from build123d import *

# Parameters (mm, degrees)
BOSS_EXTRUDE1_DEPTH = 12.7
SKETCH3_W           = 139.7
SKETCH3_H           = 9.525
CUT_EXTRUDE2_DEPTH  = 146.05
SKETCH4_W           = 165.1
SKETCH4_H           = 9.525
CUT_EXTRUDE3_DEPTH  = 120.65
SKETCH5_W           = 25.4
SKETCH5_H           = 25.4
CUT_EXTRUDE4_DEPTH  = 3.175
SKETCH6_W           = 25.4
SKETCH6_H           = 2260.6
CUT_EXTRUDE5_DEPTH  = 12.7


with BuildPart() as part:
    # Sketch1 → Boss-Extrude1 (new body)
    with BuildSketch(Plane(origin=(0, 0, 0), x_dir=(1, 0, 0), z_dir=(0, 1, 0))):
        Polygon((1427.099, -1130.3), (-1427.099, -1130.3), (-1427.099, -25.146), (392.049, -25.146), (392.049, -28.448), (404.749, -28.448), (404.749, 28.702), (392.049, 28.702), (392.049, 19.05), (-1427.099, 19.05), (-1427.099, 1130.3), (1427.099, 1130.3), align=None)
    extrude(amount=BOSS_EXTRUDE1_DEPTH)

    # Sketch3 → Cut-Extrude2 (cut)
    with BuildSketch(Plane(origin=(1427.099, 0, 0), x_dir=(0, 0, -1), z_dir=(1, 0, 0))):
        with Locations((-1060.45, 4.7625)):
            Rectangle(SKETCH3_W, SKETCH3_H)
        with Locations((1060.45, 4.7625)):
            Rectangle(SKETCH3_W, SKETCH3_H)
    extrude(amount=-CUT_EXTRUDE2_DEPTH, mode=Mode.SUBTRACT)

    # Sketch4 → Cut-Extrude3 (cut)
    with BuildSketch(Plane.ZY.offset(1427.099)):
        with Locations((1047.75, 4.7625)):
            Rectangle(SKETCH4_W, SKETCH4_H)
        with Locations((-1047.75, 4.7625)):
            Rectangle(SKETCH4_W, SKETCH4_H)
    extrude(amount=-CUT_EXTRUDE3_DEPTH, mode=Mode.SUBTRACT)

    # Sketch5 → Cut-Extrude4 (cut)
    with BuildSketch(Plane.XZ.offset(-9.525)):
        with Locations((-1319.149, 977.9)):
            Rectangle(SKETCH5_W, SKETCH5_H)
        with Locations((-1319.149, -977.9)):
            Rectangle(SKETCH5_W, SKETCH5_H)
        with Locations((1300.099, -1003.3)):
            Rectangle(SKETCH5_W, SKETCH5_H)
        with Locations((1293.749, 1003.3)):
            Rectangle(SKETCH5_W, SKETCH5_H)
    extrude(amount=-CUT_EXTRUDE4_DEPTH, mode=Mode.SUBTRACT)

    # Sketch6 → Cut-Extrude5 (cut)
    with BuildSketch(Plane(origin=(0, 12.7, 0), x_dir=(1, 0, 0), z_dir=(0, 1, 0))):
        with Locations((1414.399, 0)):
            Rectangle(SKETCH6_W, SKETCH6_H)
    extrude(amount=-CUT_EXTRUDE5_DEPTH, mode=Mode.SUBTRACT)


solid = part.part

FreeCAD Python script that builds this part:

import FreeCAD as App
import Part
import Sketcher
from FreeCAD import Vector
Q = App.Units.Quantity

doc = App.newDocument("Part")
body = doc.addObject("PartDesign::Body", "Body")

sketch1 = body.newObject("Sketcher::SketchObject", "Sketch")
sketch1.AttachmentSupport = (doc.getObject("XZ_Plane"), [""])
sketch1.MapMode = "FlatFace"
sketch1.addGeometry([
    Part.LineSegment(Vector(-1427.099, 1130.3, 0), Vector(1427.099, 1130.3, 0)),
    Part.LineSegment(Vector(1427.099, 1130.3, 0), Vector(1427.099, -1130.3, 0)),
    Part.LineSegment(Vector(1427.099, -1130.3, 0), Vector(-1427.099, -1130.3, 0)),
    Part.LineSegment(Vector(-1427.099, -1130.3, 0), Vector(-1427.099, -19.05, 0)),
    Part.LineSegment(Vector(-1427.099, -19.05, 0), Vector(392.049, -19.05, 0)),
    Part.LineSegment(Vector(392.049, -19.05, 0), Vector(392.049, -28.702, 0)),
    Part.LineSegment(Vector(392.049, -28.702, 0), Vector(404.749, -28.702, 0)),
    Part.LineSegment(Vector(404.749, -28.702, 0), Vector(404.749, 28.448, 0)),
    Part.LineSegment(Vector(404.749, 28.448, 0), Vector(392.049, 28.448, 0)),
    Part.LineSegment(Vector(392.049, 28.448, 0), Vector(392.049, 25.146, 0)),
    Part.LineSegment(Vector(392.049, 25.146, 0), Vector(-1427.099, 25.146, 0)),
    Part.LineSegment(Vector(-1427.099, 25.146, 0), Vector(-1427.099, 1130.3, 0)),
], False)
sketch1.addConstraint([
    Sketcher.Constraint("Coincident", 0, 2, 1, 1),
    Sketcher.Constraint("Coincident", 1, 2, 2, 1),
    Sketcher.Constraint("Coincident", 2, 2, 3, 1),
    Sketcher.Constraint("Coincident", 3, 2, 4, 1),
    Sketcher.Constraint("Coincident", 4, 2, 5, 1),
    Sketcher.Constraint("Coincident", 5, 2, 6, 1),
    Sketcher.Constraint("Coincident", 6, 2, 7, 1),
    Sketcher.Constraint("Coincident", 7, 2, 8, 1),
    Sketcher.Constraint("Coincident", 8, 2, 9, 1),
    Sketcher.Constraint("Coincident", 9, 2, 10, 1),
    Sketcher.Constraint("Coincident", 10, 2, 11, 1),
    Sketcher.Constraint("Coincident", 11, 2, 0, 1),
    Sketcher.Constraint("Horizontal", 0),
    Sketcher.Constraint("Vertical", 1),
    Sketcher.Constraint("Horizontal", 2),
    Sketcher.Constraint("Vertical", 3),
    Sketcher.Constraint("Horizontal", 4),
    Sketcher.Constraint("Vertical", 5),
    Sketcher.Constraint("Horizontal", 6),
    Sketcher.Constraint("Vertical", 7),
    Sketcher.Constraint("Horizontal", 8),
    Sketcher.Constraint("Vertical", 9),
    Sketcher.Constraint("Horizontal", 10),
    Sketcher.Constraint("Vertical", 11),
    Sketcher.Constraint("Symmetric", 0, 2, 2, 2, -1, 1),
    Sketcher.Constraint("Vertical", 5, 2, 8, 2),
    Sketcher.Constraint("Vertical", 3, 2, 10, 2),
    Sketcher.Constraint("DistanceY", 1, 2, 1, 1, Q("89 in")),
    Sketcher.Constraint("DistanceX", 6, 1, 6, 2, Q("0.5 in")),
    Sketcher.Constraint("DistanceX", 0, 1, 0, 2, Q("112.37 in")),
    Sketcher.Constraint("DistanceX", 4, 1, 4, 2, Q("71.62 in")),
    Sketcher.Constraint("DistanceY", 3, 1, 3, 2, Q("43.75 in")),
    Sketcher.Constraint("DistanceY", 5, 2, 5, 1, Q("0.38 in")),
    Sketcher.Constraint("DistanceY", 7, 1, 7, 2, Q("2.25 in")),
    Sketcher.Constraint("DistanceY", 9, 2, 9, 1, Q("0.13 in")),
])
pad1 = body.newObject("PartDesign::Pad", "Pad")
pad1.Profile = sketch1
pad1.Length = Q("0.5 in")
pad1.Reversed = True

sketch2 = body.newObject("Sketcher::SketchObject", "Sketch001")
sketch2.AttachmentSupport = (doc.getObject("YZ_Plane"), [""])
sketch2.MapMode = "FlatFace"
sketch2.AttachmentOffset = App.Placement(Vector(0, 0, 56.185 * 25.4), App.Rotation())
sketch2.addGeometry([
    Part.LineSegment(Vector(9.525, 1130.3, 0), Vector(0, 1130.3, 0)),
    Part.LineSegment(Vector(0, 1130.3, 0), Vector(0, 990.6, 0)),
    Part.LineSegment(Vector(0, 990.6, 0), Vector(9.525, 990.6, 0)),
    Part.LineSegment(Vector(9.525, 990.6, 0), Vector(9.525, 1130.3, 0)),
    Part.LineSegment(Vector(9.525, -990.6, 0), Vector(0, -990.6, 0)),
    Part.LineSegment(Vector(0, -990.6, 0), Vector(0, -1130.3, 0)),
    Part.LineSegment(Vector(0, -1130.3, 0), Vector(9.525, -1130.3, 0)),
    Part.LineSegment(Vector(9.525, -1130.3, 0), Vector(9.525, -990.6, 0)),
], False)
sketch2.addConstraint([
    Sketcher.Constraint("Coincident", 0, 2, 1, 1),
    Sketcher.Constraint("Coincident", 1, 2, 2, 1),
    Sketcher.Constraint("Coincident", 2, 2, 3, 1),
    Sketcher.Constraint("Coincident", 3, 2, 0, 1),
    Sketcher.Constraint("Coincident", 4, 2, 5, 1),
    Sketcher.Constraint("Coincident", 5, 2, 6, 1),
    Sketcher.Constraint("Coincident", 6, 2, 7, 1),
    Sketcher.Constraint("Coincident", 7, 2, 4, 1),
    Sketcher.Constraint("Horizontal", 0),
    Sketcher.Constraint("Vertical", 1),
    Sketcher.Constraint("Horizontal", 2),
    Sketcher.Constraint("Vertical", 3),
    Sketcher.Constraint("Horizontal", 4),
    Sketcher.Constraint("Vertical", 5),
    Sketcher.Constraint("Horizontal", 6),
    Sketcher.Constraint("Vertical", 7),
    Sketcher.Constraint("Symmetric", 1, 2, 4, 2, -1, 1),
    Sketcher.Constraint("Symmetric", 0, 2, 5, 2, -1),
    Sketcher.Constraint("Vertical", 3, 2, 6, 2),
    Sketcher.Constraint("DistanceY", 1, 2, 1, 1, Q("5.5 in")),
    Sketcher.Constraint("DistanceY", -1, 1, 1, 2, Q("39 in")),
    Sketcher.Constraint("DistanceX", 0, 2, 0, 1, Q("0.375 in")),
])
pocket1 = body.newObject("PartDesign::Pocket", "Pocket")
pocket1.Profile = sketch2
pocket1.Length = Q("5.75 in")

sketch3 = body.newObject("Sketcher::SketchObject", "Sketch002")
sketch3.AttachmentSupport = (doc.getObject("YZ_Plane"), [""])
sketch3.MapMode = "FlatFace"
sketch3.AttachmentOffset = App.Placement(Vector(0, 0, -56.185 * 25.4), App.Rotation())
sketch3.addGeometry([
    Part.LineSegment(Vector(9.525, 965.2, 0), Vector(0, 965.2, 0)),
    Part.LineSegment(Vector(0, 965.2, 0), Vector(0, 1130.3, 0)),
    Part.LineSegment(Vector(0, 1130.3, 0), Vector(9.525, 1130.3, 0)),
    Part.LineSegment(Vector(9.525, 1130.3, 0), Vector(9.525, 965.2, 0)),
    Part.LineSegment(Vector(9.525, -1130.3, 0), Vector(0, -1130.3, 0)),
    Part.LineSegment(Vector(0, -1130.3, 0), Vector(0, -965.2, 0)),
    Part.LineSegment(Vector(0, -965.2, 0), Vector(9.525, -965.2, 0)),
    Part.LineSegment(Vector(9.525, -965.2, 0), Vector(9.525, -1130.3, 0)),
], False)
sketch3.addConstraint([
    Sketcher.Constraint("Coincident", 0, 2, 1, 1),
    Sketcher.Constraint("Coincident", 1, 2, 2, 1),
    Sketcher.Constraint("Coincident", 2, 2, 3, 1),
    Sketcher.Constraint("Coincident", 3, 2, 0, 1),
    Sketcher.Constraint("Coincident", 4, 2, 5, 1),
    Sketcher.Constraint("Coincident", 5, 2, 6, 1),
    Sketcher.Constraint("Coincident", 6, 2, 7, 1),
    Sketcher.Constraint("Coincident", 7, 2, 4, 1),
    Sketcher.Constraint("Horizontal", 0),
    Sketcher.Constraint("Vertical", 1),
    Sketcher.Constraint("Horizontal", 2),
    Sketcher.Constraint("Vertical", 3),
    Sketcher.Constraint("Horizontal", 4),
    Sketcher.Constraint("Vertical", 5),
    Sketcher.Constraint("Horizontal", 6),
    Sketcher.Constraint("Vertical", 7),
    Sketcher.Constraint("Symmetric", 1, 2, 4, 2, -1, 1),
    Sketcher.Constraint("Symmetric", 0, 2, 5, 2, -1),
    Sketcher.Constraint("Vertical", 3, 2, 6, 2),
    Sketcher.Constraint("DistanceY", 1, 1, 1, 2, Q("6.5 in")),
    Sketcher.Constraint("DistanceY", -1, 1, 0, 2, Q("38 in")),
    Sketcher.Constraint("DistanceX", 0, 2, 0, 1, Q("0.375 in")),
])
pocket2 = body.newObject("PartDesign::Pocket", "Pocket001")
pocket2.Profile = sketch3
pocket2.Length = Q("4.75 in")
pocket2.Reversed = True

sketch4 = body.newObject("Sketcher::SketchObject", "Sketch003")
sketch4.AttachmentSupport = (doc.getObject("XZ_Plane"), [""])
sketch4.MapMode = "FlatFace"
sketch4.AttachmentOffset = App.Placement(Vector(0, 0, -0.375 * 25.4), App.Rotation())
sketch4.addGeometry([
    Part.LineSegment(Vector(-1331.849, 990.6, 0), Vector(-1331.849, 965.2, 0)),
    Part.LineSegment(Vector(-1331.849, 965.2, 0), Vector(-1306.449, 965.2, 0)),
    Part.LineSegment(Vector(-1306.449, 965.2, 0), Vector(-1306.449, 990.6, 0)),
    Part.LineSegment(Vector(-1306.449, 990.6, 0), Vector(-1331.849, 990.6, 0)),
    Part.LineSegment(Vector(-1331.849, -965.2, 0), Vector(-1331.849, -990.6, 0)),
    Part.LineSegment(Vector(-1331.849, -990.6, 0), Vector(-1306.449, -990.6, 0)),
    Part.LineSegment(Vector(-1306.449, -990.6, 0), Vector(-1306.449, -965.2, 0)),
    Part.LineSegment(Vector(-1306.449, -965.2, 0), Vector(-1331.849, -965.2, 0)),
    Part.LineSegment(Vector(1287.399, -990.6, 0), Vector(1287.399, -1016, 0)),
    Part.LineSegment(Vector(1287.399, -1016, 0), Vector(1312.799, -1016, 0)),
    Part.LineSegment(Vector(1312.799, -1016, 0), Vector(1312.799, -990.6, 0)),
    Part.LineSegment(Vector(1312.799, -990.6, 0), Vector(1287.399, -990.6, 0)),
    Part.LineSegment(Vector(1281.049, 1016, 0), Vector(1281.049, 990.6, 0)),
    Part.LineSegment(Vector(1281.049, 990.6, 0), Vector(1306.449, 990.6, 0)),
    Part.LineSegment(Vector(1306.449, 990.6, 0), Vector(1306.449, 1016, 0)),
    Part.LineSegment(Vector(1306.449, 1016, 0), Vector(1281.049, 1016, 0)),
], False)
sketch4.addConstraint([
    Sketcher.Constraint("Coincident", 0, 2, 1, 1),
    Sketcher.Constraint("Coincident", 1, 2, 2, 1),
    Sketcher.Constraint("Coincident", 2, 2, 3, 1),
    Sketcher.Constraint("Coincident", 3, 2, 0, 1),
    Sketcher.Constraint("Coincident", 4, 2, 5, 1),
    Sketcher.Constraint("Coincident", 5, 2, 6, 1),
    Sketcher.Constraint("Coincident", 6, 2, 7, 1),
    Sketcher.Constraint("Coincident", 7, 2, 4, 1),
    Sketcher.Constraint("Coincident", 8, 2, 9, 1),
    Sketcher.Constraint("Coincident", 9, 2, 10, 1),
    Sketcher.Constraint("Coincident", 10, 2, 11, 1),
    Sketcher.Constraint("Coincident", 11, 2, 8, 1),
    Sketcher.Constraint("Coincident", 12, 2, 13, 1),
    Sketcher.Constraint("Coincident", 13, 2, 14, 1),
    Sketcher.Constraint("Coincident", 14, 2, 15, 1),
    Sketcher.Constraint("Coincident", 15, 2, 12, 1),
    Sketcher.Constraint("Vertical", 0),
    Sketcher.Constraint("Horizontal", 1),
    Sketcher.Constraint("Vertical", 2),
    Sketcher.Constraint("Horizontal", 3),
    Sketcher.Constraint("Vertical", 4),
    Sketcher.Constraint("Horizontal", 5),
    Sketcher.Constraint("Vertical", 6),
    Sketcher.Constraint("Horizontal", 7),
    Sketcher.Constraint("Vertical", 8),
    Sketcher.Constraint("Horizontal", 9),
    Sketcher.Constraint("Vertical", 10),
    Sketcher.Constraint("Horizontal", 11),
    Sketcher.Constraint("Vertical", 12),
    Sketcher.Constraint("Horizontal", 13),
    Sketcher.Constraint("Vertical", 14),
    Sketcher.Constraint("Horizontal", 15),
    Sketcher.Constraint("Symmetric", 5, 2, 13, 2, -1, 1),
    Sketcher.Constraint("Symmetric", 2, 2, 13, 2, -2),
    Sketcher.Constraint("Symmetric", 0, 2, 7, 2, -1),
    Sketcher.Constraint("Horizontal", 5, 2, 10, 2),
    Sketcher.Constraint("Equal", 7, 9),
    Sketcher.Constraint("Equal", 11, 13),
    Sketcher.Constraint("Equal", 15, 0),
    Sketcher.Constraint("Equal", 6, 8),
    Sketcher.Constraint("Equal", 10, 12),
    Sketcher.Constraint("DistanceX", 1, 1, 1, 2, Q("1 in")),
    Sketcher.Constraint("DistanceY", -1, 1, 0, 2, Q("38 in")),
    Sketcher.Constraint("DistanceX", 5, 2, 8, 2, Q("102.12 in")),
    Sketcher.Constraint("DistanceX", 12, 2, 11, 2, Q("0.25 in")),
])
pocket3 = body.newObject("PartDesign::Pocket", "Pocket002")
pocket3.Profile = sketch4
pocket3.Length = Q("0.125 in")

sketch5 = body.newObject("Sketcher::SketchObject", "Sketch004")
sketch5.AttachmentSupport = (doc.getObject("XZ_Plane"), [""])
sketch5.MapMode = "FlatFace"
sketch5.AttachmentOffset = App.Placement(Vector(0, 0, -0.5 * 25.4), App.Rotation())
sketch5.addGeometry([
    Part.LineSegment(Vector(1401.699, -1130.3, 0), Vector(1401.699, 1130.3, 0)),
    Part.LineSegment(Vector(1401.699, 1130.3, 0), Vector(1427.099, 1130.3, 0)),
    Part.LineSegment(Vector(1427.099, 1130.3, 0), Vector(1427.099, -1130.3, 0)),
    Part.LineSegment(Vector(1427.099, -1130.3, 0), Vector(1401.699, -1130.3, 0)),
], False)
sketch5.addConstraint([
    Sketcher.Constraint("Coincident", 0, 2, 1, 1),
    Sketcher.Constraint("Coincident", 1, 2, 2, 1),
    Sketcher.Constraint("Coincident", 2, 2, 3, 1),
    Sketcher.Constraint("Coincident", 3, 2, 0, 1),
    Sketcher.Constraint("Vertical", 0),
    Sketcher.Constraint("Horizontal", 1),
    Sketcher.Constraint("Vertical", 2),
    Sketcher.Constraint("Horizontal", 3),
    Sketcher.Constraint("DistanceX", 1, 1, 1, 2, Q("1 in")),
    Sketcher.Constraint("DistanceY", 0, 1, 0, 2, Q("89 in")),
    Sketcher.Constraint("DistanceY", -1, 1, 0, 2, Q("44.5 in")),
    Sketcher.Constraint("DistanceX", -1, 1, 0, 2, Q("55.185 in")),
])
pocket4 = body.newObject("PartDesign::Pocket", "Pocket003")
pocket4.Profile = sketch5
pocket4.Length = Q("0.5 in")
pocket4.Reversed = True

doc.recompute()
